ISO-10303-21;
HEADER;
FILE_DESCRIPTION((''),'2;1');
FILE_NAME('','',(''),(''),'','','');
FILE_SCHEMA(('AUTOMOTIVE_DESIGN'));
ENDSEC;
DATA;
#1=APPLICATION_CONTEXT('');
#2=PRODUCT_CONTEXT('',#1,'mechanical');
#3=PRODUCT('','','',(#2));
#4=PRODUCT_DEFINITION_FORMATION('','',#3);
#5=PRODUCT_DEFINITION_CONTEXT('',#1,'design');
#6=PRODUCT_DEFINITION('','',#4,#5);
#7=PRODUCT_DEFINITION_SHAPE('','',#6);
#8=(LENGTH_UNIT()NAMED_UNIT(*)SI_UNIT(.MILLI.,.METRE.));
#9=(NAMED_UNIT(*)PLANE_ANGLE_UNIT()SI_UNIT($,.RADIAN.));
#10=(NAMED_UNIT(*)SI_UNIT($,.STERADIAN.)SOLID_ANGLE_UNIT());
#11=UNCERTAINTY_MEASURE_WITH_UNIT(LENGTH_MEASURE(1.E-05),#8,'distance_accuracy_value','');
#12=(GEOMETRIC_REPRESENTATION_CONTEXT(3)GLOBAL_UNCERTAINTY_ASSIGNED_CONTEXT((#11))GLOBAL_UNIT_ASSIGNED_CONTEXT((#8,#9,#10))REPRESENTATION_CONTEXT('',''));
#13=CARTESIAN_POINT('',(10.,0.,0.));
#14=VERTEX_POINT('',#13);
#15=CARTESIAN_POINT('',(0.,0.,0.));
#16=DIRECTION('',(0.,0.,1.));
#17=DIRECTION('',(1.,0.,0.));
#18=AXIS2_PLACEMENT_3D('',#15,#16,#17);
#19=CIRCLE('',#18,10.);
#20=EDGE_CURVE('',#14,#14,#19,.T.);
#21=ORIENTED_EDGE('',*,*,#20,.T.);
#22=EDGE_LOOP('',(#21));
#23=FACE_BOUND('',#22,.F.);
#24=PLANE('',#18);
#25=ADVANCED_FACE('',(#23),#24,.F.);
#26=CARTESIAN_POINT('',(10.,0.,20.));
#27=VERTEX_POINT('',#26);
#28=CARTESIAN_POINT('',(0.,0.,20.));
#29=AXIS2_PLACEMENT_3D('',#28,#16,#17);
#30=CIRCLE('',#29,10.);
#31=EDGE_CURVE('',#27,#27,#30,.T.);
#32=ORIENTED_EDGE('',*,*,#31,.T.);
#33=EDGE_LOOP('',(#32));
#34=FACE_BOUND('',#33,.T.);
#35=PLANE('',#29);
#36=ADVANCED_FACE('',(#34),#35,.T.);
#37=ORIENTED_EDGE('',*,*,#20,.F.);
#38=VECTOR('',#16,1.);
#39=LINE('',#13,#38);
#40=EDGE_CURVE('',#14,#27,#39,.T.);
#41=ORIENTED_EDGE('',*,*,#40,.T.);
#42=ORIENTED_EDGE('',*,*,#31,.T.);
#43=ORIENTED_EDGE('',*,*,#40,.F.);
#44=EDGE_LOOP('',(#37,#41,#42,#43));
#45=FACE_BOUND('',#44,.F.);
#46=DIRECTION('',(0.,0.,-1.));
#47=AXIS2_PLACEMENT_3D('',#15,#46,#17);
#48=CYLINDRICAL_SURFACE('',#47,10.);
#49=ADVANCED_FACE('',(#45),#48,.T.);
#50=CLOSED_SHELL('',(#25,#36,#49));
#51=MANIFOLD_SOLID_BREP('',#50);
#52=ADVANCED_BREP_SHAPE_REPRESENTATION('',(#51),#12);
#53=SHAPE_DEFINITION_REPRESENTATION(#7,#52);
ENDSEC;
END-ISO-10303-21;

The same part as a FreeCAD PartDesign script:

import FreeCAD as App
import Part
import Sketcher
from FreeCAD import Vector

doc = App.newDocument("Part")
params = doc.addObject("Spreadsheet::Sheet", "Params")
for row, (alias, value) in enumerate([
    ("sketch1_diameter", "20 mm"),
    ("pad1_length", "20 mm"),
], start=1):
    params.set(f"A{row}", alias)
    params.set(f"B{row}", "=" + value)
    params.setAlias(f"B{row}", alias)

body = doc.addObject("PartDesign::Body", "Body")

# Sketch on XY plane
sketch1 = body.newObject("Sketcher::SketchObject", "Sketch")
sketch1.AttachmentSupport = (doc.getObject("XY_Plane"), [""])
sketch1.MapMode = "FlatFace"
sketch1.addGeometry(Part.Circle(Vector(0, 0, 0), Vector(0, 0, 1), 10), False)
sketch1.addConstraint([
    Sketcher.Constraint("Coincident", 0, 3, -1, 1),
    Sketcher.Constraint("Diameter", 0, 20.0),
])
sketch1.setExpression("Constraints[1]", "Params.sketch1_diameter")
pad1 = body.newObject("PartDesign::Pad", "Pad")
pad1.Profile = sketch1
pad1.setExpression("Length", "Params.pad1_length")

doc.recompute()
